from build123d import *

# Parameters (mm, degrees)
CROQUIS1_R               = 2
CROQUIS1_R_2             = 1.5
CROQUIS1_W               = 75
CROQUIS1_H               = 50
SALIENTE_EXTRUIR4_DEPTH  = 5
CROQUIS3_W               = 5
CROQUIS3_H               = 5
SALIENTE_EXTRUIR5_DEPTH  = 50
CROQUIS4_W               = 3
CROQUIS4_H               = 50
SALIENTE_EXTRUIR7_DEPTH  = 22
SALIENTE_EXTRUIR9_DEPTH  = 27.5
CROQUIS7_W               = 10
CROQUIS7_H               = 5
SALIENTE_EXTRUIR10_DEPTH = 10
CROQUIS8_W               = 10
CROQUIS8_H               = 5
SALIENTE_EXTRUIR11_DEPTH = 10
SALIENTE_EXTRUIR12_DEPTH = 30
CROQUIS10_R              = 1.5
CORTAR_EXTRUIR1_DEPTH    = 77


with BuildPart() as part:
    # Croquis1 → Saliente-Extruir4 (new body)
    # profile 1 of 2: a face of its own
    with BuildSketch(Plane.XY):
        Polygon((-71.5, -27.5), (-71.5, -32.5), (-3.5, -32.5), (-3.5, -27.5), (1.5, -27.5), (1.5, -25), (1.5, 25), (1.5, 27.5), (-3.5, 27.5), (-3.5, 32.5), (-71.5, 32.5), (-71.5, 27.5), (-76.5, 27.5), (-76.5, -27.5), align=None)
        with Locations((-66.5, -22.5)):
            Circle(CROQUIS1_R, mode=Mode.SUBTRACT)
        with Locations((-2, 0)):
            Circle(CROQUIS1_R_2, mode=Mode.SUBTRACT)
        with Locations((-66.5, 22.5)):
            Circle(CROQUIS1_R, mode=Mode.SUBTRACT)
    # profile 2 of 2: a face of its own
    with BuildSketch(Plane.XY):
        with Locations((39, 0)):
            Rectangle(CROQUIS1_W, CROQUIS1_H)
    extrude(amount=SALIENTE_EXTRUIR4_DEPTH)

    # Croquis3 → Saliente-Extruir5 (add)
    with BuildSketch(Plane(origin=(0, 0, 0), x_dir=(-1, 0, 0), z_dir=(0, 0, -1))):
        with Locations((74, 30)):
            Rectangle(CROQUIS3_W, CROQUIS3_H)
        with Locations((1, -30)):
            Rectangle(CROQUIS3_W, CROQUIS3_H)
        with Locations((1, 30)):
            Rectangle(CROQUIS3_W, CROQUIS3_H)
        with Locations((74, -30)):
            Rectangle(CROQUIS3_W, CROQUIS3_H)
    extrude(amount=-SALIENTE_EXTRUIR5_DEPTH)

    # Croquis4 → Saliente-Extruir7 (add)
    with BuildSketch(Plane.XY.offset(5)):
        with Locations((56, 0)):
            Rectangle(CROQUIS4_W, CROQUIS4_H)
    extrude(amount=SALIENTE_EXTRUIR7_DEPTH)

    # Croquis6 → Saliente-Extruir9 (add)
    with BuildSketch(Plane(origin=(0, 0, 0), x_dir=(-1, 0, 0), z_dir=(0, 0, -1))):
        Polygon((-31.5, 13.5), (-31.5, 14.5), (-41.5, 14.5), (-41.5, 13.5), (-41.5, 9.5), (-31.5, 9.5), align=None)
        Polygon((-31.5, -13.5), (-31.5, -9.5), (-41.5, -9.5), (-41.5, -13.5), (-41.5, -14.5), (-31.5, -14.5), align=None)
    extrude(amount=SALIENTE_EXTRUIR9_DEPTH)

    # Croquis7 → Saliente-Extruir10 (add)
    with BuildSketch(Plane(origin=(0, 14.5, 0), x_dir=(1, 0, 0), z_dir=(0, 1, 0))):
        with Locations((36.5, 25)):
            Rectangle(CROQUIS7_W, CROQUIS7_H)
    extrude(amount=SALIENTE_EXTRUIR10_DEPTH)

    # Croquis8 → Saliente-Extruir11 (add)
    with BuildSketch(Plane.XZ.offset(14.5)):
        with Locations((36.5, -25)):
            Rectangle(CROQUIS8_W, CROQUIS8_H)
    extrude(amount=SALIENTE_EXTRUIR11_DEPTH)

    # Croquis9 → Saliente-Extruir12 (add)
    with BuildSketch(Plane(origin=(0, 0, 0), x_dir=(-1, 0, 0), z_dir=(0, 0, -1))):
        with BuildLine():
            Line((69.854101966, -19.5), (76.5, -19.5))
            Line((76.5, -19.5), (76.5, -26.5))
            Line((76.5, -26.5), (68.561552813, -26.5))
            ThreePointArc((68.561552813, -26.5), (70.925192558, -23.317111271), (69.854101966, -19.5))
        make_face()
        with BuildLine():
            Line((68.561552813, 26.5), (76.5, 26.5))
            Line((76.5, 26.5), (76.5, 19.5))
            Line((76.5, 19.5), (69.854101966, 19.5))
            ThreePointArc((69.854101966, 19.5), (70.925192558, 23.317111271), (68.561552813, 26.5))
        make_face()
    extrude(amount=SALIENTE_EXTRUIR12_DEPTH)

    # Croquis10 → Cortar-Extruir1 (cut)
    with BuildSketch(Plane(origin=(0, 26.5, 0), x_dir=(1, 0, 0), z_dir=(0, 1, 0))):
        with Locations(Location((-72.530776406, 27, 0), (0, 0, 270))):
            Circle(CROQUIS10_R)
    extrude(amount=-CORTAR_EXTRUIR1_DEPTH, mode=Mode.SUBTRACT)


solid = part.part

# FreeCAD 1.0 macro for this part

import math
import FreeCAD as App
import Part
import Sketcher

V = App.Vector

doc = App.newDocument("Part")
body = doc.addObject("PartDesign::Body", "Body")

# Sketch on XY plane
sketch1 = body.newObject("Sketcher::SketchObject", "Sketch")
sketch1.AttachmentSupport = (doc.getObject("XY_Plane"), [""])
sketch1.MapMode = "FlatFace"
sketch1.addGeometry(Part.LineSegment(V(-71.5, -27.5, 0), V(-71.5, -32.5, 0)), False)
sketch1.addGeometry(Part.LineSegment(V(-71.5, -32.5, 0), V(-3.5, -32.5, 0)), False)
sketch1.addGeometry(Part.LineSegment(V(-3.5, -32.5, 0), V(-3.5, -27.5, 0)), False)
sketch1.addGeometry(Part.LineSegment(V(-3.5, -27.5, 0), V(1.5, -27.5, 0)), False)
sketch1.addGeometry(Part.LineSegment(V(1.5, -27.5, 0), V(1.5, -25, 0)), False)
sketch1.addGeometry(Part.LineSegment(V(1.5, -25, 0), V(76.5, -25, 0)), False)
sketch1.addGeometry(Part.LineSegment(V(76.5, -25, 0), V(76.5, 25, 0)), False)
sketch1.addGeometry(Part.LineSegment(V(76.5, 25, 0), V(1.5, 25, 0)), False)
sketch1.addGeometry(Part.LineSegment(V(1.5, 25, 0), V(1.5, 27.5, 0)), False)
sketch1.addGeometry(Part.LineSegment(V(1.5, 27.5, 0), V(-3.5, 27.5, 0)), False)
sketch1.addGeometry(Part.LineSegment(V(-3.5, 27.5, 0), V(-3.5, 32.5, 0)), False)
sketch1.addGeometry(Part.LineSegment(V(-3.5, 32.5, 0), V(-71.5, 32.5, 0)), False)
sketch1.addGeometry(Part.LineSegment(V(-71.5, 32.5, 0), V(-71.5, 27.5, 0)), False)
sketch1.addGeometry(Part.LineSegment(V(-71.5, 27.5, 0), V(-76.5, 27.5, 0)), False)
sketch1.addGeometry(Part.LineSegment(V(-76.5, 27.5, 0), V(-76.5, -27.5, 0)), False)
sketch1.addGeometry(Part.LineSegment(V(-76.5, -27.5, 0), V(-71.5, -27.5, 0)), False)
sketch1.addGeometry(Part.Circle(V(-66.5, -22.5, 0), V(0, 0, 1), 2), False)
sketch1.addGeometry(Part.Circle(V(-2, 0, 0), V(0, 0, 1), 1.5), False)
sketch1.addGeometry(Part.Circle(V(-66.5, 22.5, 0), V(0, 0, 1), 2), False)
sketch1.addConstraint(Sketcher.Constraint("Coincident", 0, 2, 1, 1))
sketch1.addConstraint(Sketcher.Constraint("Coincident", 1, 2, 2, 1))
sketch1.addConstraint(Sketcher.Constraint("Coincident", 2, 2, 3, 1))
sketch1.addConstraint(Sketcher.Constraint("Coincident", 3, 2, 4, 1))
sketch1.addConstraint(Sketcher.Constraint("Coincident", 4, 2, 5, 1))
sketch1.addConstraint(Sketcher.Constraint("Coincident", 5, 2, 6, 1))
sketch1.addConstraint(Sketcher.Constraint("Coincident", 6, 2, 7, 1))
sketch1.addConstraint(Sketcher.Constraint("Coincident", 7, 2, 8, 1))
sketch1.addConstraint(Sketcher.Constraint("Coincident", 8, 2, 9, 1))
sketch1.addConstraint(Sketcher.Constraint("Coincident", 9, 2, 10, 1))
sketch1.addConstraint(Sketcher.Constraint("Coincident", 10, 2, 11, 1))
sketch1.addConstraint(Sketcher.Constraint("Coincident", 11, 2, 12, 1))
sketch1.addConstraint(Sketcher.Constraint("Coincident", 12, 2, 13, 1))
sketch1.addConstraint(Sketcher.Constraint("Coincident", 13, 2, 14, 1))
sketch1.addConstraint(Sketcher.Constraint("Coincident", 14, 2, 15, 1))
sketch1.addConstraint(Sketcher.Constraint("Coincident", 15, 2, 0, 1))
sketch1.addConstraint(Sketcher.Constraint("Vertical", 0))
sketch1.addConstraint(Sketcher.Constraint("Horizontal", 1))
sketch1.addConstraint(Sketcher.Constraint("Vertical", 2))
sketch1.addConstraint(Sketcher.Constraint("Horizontal", 3))
sketch1.addConstraint(Sketcher.Constraint("Vertical", 4))
sketch1.addConstraint(Sketcher.Constraint("Horizontal", 5))
sketch1.addConstraint(Sketcher.Constraint("Vertical", 6))
sketch1.addConstraint(Sketcher.Constraint("Horizontal", 7))
sketch1.addConstraint(Sketcher.Constraint("Vertical", 8))
sketch1.addConstraint(Sketcher.Constraint("Horizontal", 9))
sketch1.addConstraint(Sketcher.Constraint("Vertical", 10))
sketch1.addConstraint(Sketcher.Constraint("Horizontal", 11))
sketch1.addConstraint(Sketcher.Constraint("Vertical", 12))
sketch1.addConstraint(Sketcher.Constraint("Horizontal", 13))
sketch1.addConstraint(Sketcher.Constraint("Vertical", 14))
sketch1.addConstraint(Sketcher.Constraint("Horizontal", 15))
sketch1.addConstraint(Sketcher.Constraint("Equal", 16, 18))
sketch1.addConstraint(Sketcher.Constraint("Symmetric", 16, 3, 18, 3, -1))
sketch1.addConstraint(Sketcher.Constraint("Symmetric", 4, 2, 7, 2, -1))
sketch1.addConstraint(Sketcher.Constraint("Symmetric", 2, 2, 9, 2, -1))
sketch1.addConstraint(Sketcher.Constraint("Symmetric", 0, 2, 11, 2, -1))
sketch1.addConstraint(Sketcher.Constraint("PointOnObject", 17, 3, -1))
sketch1.addConstraint(Sketcher.Constraint("Horizontal", 9, 2, 12, 2))
sketch1.addConstraint(Sketcher.Constraint("Horizontal", 3, 2, 14, 2))
sketch1.addConstraint(Sketcher.Constraint("Equal", 9, 13))
sketch1.addConstraint(Sketcher.Constraint("Equal", 15, 0))
sketch1.addConstraint(Sketcher.Constraint("Diameter", 16, 4.0))
sketch1.addConstraint(Sketcher.Constraint("Diameter", 17, 3.0))
sketch1.addConstraint(Sketcher.Constraint("DistanceX", 1, 1, 1, 2, 68.0))
sketch1.addConstraint(Sketcher.Constraint("DistanceX", 3, 1, 3, 2, 5.0))
sketch1.addConstraint(Sketcher.Constraint("DistanceX", 5, 1, 5, 2, 75.0))
sketch1.addConstraint(Sketcher.Constraint("DistanceY", 6, 1, 6, 2, 50.0))
sketch1.addConstraint(Sketcher.Constraint("DistanceY", 14, 2, 14, 1, 55.0))
sketch1.addConstraint(Sketcher.Constraint("DistanceX", 17, 3, -1, 1, 2.0))
sketch1.addConstraint(Sketcher.Constraint("DistanceY", 16, 3, 18, 3, 45.0))
sketch1.addConstraint(Sketcher.Constraint("DistanceX", 0, 2, 16, 3, 5.0))
sketch1.addConstraint(Sketcher.Constraint("DistanceX", 16, 3, -1, 1, 66.5))
pad1 = body.newObject("PartDesign::Pad", "Pad")
pad1.Profile = sketch1
pad1.Length = 5

# Sketch on XY plane
sketch2 = body.newObject("Sketcher::SketchObject", "Sketch001")
sketch2.AttachmentSupport = (doc.getObject("XY_Plane"), [""])
sketch2.MapMode = "FlatFace"
sketch2.addGeometry(Part.LineSegment(V(-72, 32, 0), V(-72, 28, 0)), False)
sketch2.addGeometry(Part.LineSegment(V(-72, 28, 0), V(-76, 28, 0)), False)
sketch2.addGeometry(Part.LineSegment(V(-76, 28, 0), V(-76, 32, 0)), False)
sketch2.addGeometry(Part.LineSegment(V(-76, 32, 0), V(-72, 32, 0)), False)
sketch2.addGeometry(Part.LineSegment(V(2, -28, 0), V(2, -32, 0)), False)
sketch2.addGeometry(Part.LineSegment(V(2, -32, 0), V(-4, -32, 0)), False)
sketch2.addGeometry(Part.LineSegment(V(-4, -32, 0), V(-4, -28, 0)), False)
sketch2.addGeometry(Part.LineSegment(V(-4, -28, 0), V(2, -28, 0)), False)
sketch2.addGeometry(Part.LineSegment(V(2, 32, 0), V(2, 28, 0)), False)
sketch2.addGeometry(Part.LineSegment(V(2, 28, 0), V(-4, 28, 0)), False)
sketch2.addGeometry(Part.LineSegment(V(-4, 28, 0), V(-4, 32, 0)), False)
sketch2.addGeometry(Part.LineSegment(V(-4, 32, 0), V(2, 32, 0)), False)
sketch2.addGeometry(Part.LineSegment(V(-72, -28, 0), V(-72, -32, 0)), False)
sketch2.addGeometry(Part.LineSegment(V(-72, -32, 0), V(-76, -32, 0)), False)
sketch2.addGeometry(Part.LineSegment(V(-76, -32, 0), V(-76, -28, 0)), False)
sketch2.addGeometry(Part.LineSegment(V(-76, -28, 0), V(-72, -28, 0)), False)
sketch2.addConstraint(Sketcher.Constraint("Coincident", 0, 2, 1, 1))
sketch2.addConstraint(Sketcher.Constraint("Coincident", 1, 2, 2, 1))
sketch2.addConstraint(Sketcher.Constraint("Coincident", 2, 2, 3, 1))
sketch2.addConstraint(Sketcher.Constraint("Coincident", 3, 2, 0, 1))
sketch2.addConstraint(Sketcher.Constraint("Coincident", 4, 2, 5, 1))
sketch2.addConstraint(Sketcher.Constraint("Coincident", 5, 2, 6, 1))
sketch2.addConstraint(Sketcher.Constraint("Coincident", 6, 2, 7, 1))
sketch2.addConstraint(Sketcher.Constraint("Coincident", 7, 2, 4, 1))
sketch2.addConstraint(Sketcher.Constraint("Coincident", 8, 2, 9, 1))
sketch2.addConstraint(Sketcher.Constraint("Coincident", 9, 2, 10, 1))
sketch2.addConstraint(Sketcher.Constraint("Coincident", 10, 2, 11, 1))
sketch2.addConstraint(Sketcher.Constraint("Coincident", 11, 2, 8, 1))
sketch2.addConstraint(Sketcher.Constraint("Coincident", 12, 2, 13, 1))
sketch2.addConstraint(Sketcher.Constraint("Coincident", 13, 2, 14, 1))
sketch2.addConstraint(Sketcher.Constraint("Coincident", 14, 2, 15, 1))
sketch2.addConstraint(Sketcher.Constraint("Coincident", 15, 2, 12, 1))
sketch2.addConstraint(Sketcher.Constraint("Vertical", 0))
sketch2.addConstraint(Sketcher.Constraint("Horizontal", 1))
sketch2.addConstraint(Sketcher.Constraint("Vertical", 2))
sketch2.addConstraint(Sketcher.Constraint("Horizontal", 3))
sketch2.addConstraint(Sketcher.Constraint("Vertical", 4))
sketch2.addConstraint(Sketcher.Constraint("Horizontal", 5))
sketch2.addConstraint(Sketcher.Constraint("Vertical", 6))
sketch2.addConstraint(Sketcher.Constraint("Horizontal", 7))
sketch2.addConstraint(Sketcher.Constraint("Vertical", 8))
sketch2.addConstraint(Sketcher.Constraint("Horizontal", 9))
sketch2.addConstraint(Sketcher.Constraint("Vertical", 10))
sketch2.addConstraint(Sketcher.Constraint("Horizontal", 11))
sketch2.addConstraint(Sketcher.Constraint("Vertical", 12))
sketch2.addConstraint(Sketcher.Constraint("Horizontal", 13))
sketch2.addConstraint(Sketcher.Constraint("Vertical", 14))
sketch2.addConstraint(Sketcher.Constraint("Horizontal", 15))
sketch2.addConstraint(Sketcher.Constraint("Symmetric", 7, 2, 8, 2, -1))
sketch2.addConstraint(Sketcher.Constraint("Symmetric", 5, 2, 10, 2, -1))
sketch2.addConstraint(Sketcher.Constraint("Symmetric", 3, 2, 12, 2, -1))
sketch2.addConstraint(Sketcher.Constraint("Symmetric", 1, 2, 14, 2, -1))
sketch2.addConstraint(Sketcher.Constraint("Horizontal", 1, 2, 8, 2))
sketch2.addConstraint(Sketcher.Constraint("Horizontal", 3, 2, 10, 2))
sketch2.addConstraint(Sketcher.Constraint("Equal", 3, 5))
sketch2.addConstraint(Sketcher.Constraint("Equal", 15, 0))
sketch2.addConstraint(Sketcher.Constraint("DistanceX", 1, 2, 1, 1, 5.0))
sketch2.addConstraint(Sketcher.Constraint("DistanceX", 0, 2, 4, 2, 73.0))
sketch2.addConstraint(Sketcher.Constraint("DistanceY", 4, 2, 0, 2, 60.0))
sketch2.addConstraint(Sketcher.Constraint("DistanceX", 0, 2, -1, 1, 71.5))
pad2 = body.newObject("PartDesign::Pad", "Pad001")
pad2.Profile = sketch2
pad2.Length = 50

# Sketch on XY plane
sketch3 = body.newObject("Sketcher::SketchObject", "Sketch002")
sketch3.AttachmentSupport = (doc.getObject("XY_Plane"), [""])
sketch3.MapMode = "FlatFace"
sketch3.AttachmentOffset = App.Placement(V(0, 0, 5), App.Rotation())
sketch3.addGeometry(Part.LineSegment(V(54.5, 25, 0), V(54.5, -25, 0)), False)
sketch3.addGeometry(Part.LineSegment(V(54.5, -25, 0), V(57.5, -25, 0)), False)
sketch3.addGeometry(Part.LineSegment(V(57.5, -25, 0), V(57.5, 25, 0)), False)
sketch3.addGeometry(Part.LineSegment(V(57.5, 25, 0), V(54.5, 25, 0)), False)
sketch3.addConstraint(Sketcher.Constraint("Coincident", 0, 2, 1, 1))
sketch3.addConstraint(Sketcher.Constraint("Coincident", 1, 2, 2, 1))
sketch3.addConstraint(Sketcher.Constraint("Coincident", 2, 2, 3, 1))
sketch3.addConstraint(Sketcher.Constraint("Coincident", 3, 2, 0, 1))
sketch3.addConstraint(Sketcher.Constraint("Vertical", 0))
sketch3.addConstraint(Sketcher.Constraint("Horizontal", 1))
sketch3.addConstraint(Sketcher.Constraint("Vertical", 2))
sketch3.addConstraint(Sketcher.Constraint("Horizontal", 3))
sketch3.addConstraint(Sketcher.Constraint("DistanceX", 1, 1, 1, 2, 3.0))
sketch3.addConstraint(Sketcher.Constraint("DistanceY", 0, 2, 0, 1, 50.0))
sketch3.addConstraint(Sketcher.Constraint("DistanceY", 0, 2, -1, 1, 25.0))
sketch3.addConstraint(Sketcher.Constraint("DistanceX", -1, 1, 0, 2, 54.5))
pad3 = body.newObject("PartDesign::Pad", "Pad002")
pad3.Profile = sketch3
pad3.Length = 22

# Sketch on XY plane
sketch4 = body.newObject("Sketcher::SketchObject", "Sketch003")
sketch4.AttachmentSupport = (doc.getObject("XY_Plane"), [""])
sketch4.MapMode = "FlatFace"
sketch4.addGeometry(Part.LineSegment(V(32, 14, 0), V(42, 14, 0)), False)
sketch4.addGeometry(Part.LineSegment(V(42, 14, 0), V(42, 10, 0)), False)
sketch4.addGeometry(Part.LineSegment(V(42, 10, 0), V(32, 10, 0)), False)
sketch4.addGeometry(Part.LineSegment(V(32, 10, 0), V(32, 14, 0)), False)
sketch4.addGeometry(Part.LineSegment(V(32, -10, 0), V(42, -10, 0)), False)
sketch4.addGeometry(Part.LineSegment(V(42, -10, 0), V(42, -14, 0)), False)
sketch4.addGeometry(Part.LineSegment(V(42, -14, 0), V(32, -14, 0)), False)
sketch4.addGeometry(Part.LineSegment(V(32, -14, 0), V(32, -10, 0)), False)
sketch4.addConstraint(Sketcher.Constraint("Coincident", 0, 2, 1, 1))
sketch4.addConstraint(Sketcher.Constraint("Coincident", 1, 2, 2, 1))
sketch4.addConstraint(Sketcher.Constraint("Coincident", 2, 2, 3, 1))
sketch4.addConstraint(Sketcher.Constraint("Coincident", 3, 2, 0, 1))
sketch4.addConstraint(Sketcher.Constraint("Coincident", 4, 2, 5, 1))
sketch4.addConstraint(Sketcher.Constraint("Coincident", 5, 2, 6, 1))
sketch4.addConstraint(Sketcher.Constraint("Coincident", 6, 2, 7, 1))
sketch4.addConstraint(Sketcher.Constraint("Coincident", 7, 2, 4, 1))
sketch4.addConstraint(Sketcher.Constraint("Horizontal", 0))
sketch4.addConstraint(Sketcher.Constraint("Vertical", 1))
sketch4.addConstraint(Sketcher.Constraint("Horizontal", 2))
sketch4.addConstraint(Sketcher.Constraint("Vertical", 3))
sketch4.addConstraint(Sketcher.Constraint("Horizontal", 4))
sketch4.addConstraint(Sketcher.Constraint("Vertical", 5))
sketch4.addConstraint(Sketcher.Constraint("Horizontal", 6))
sketch4.addConstraint(Sketcher.Constraint("Vertical", 7))
sketch4.addConstraint(Sketcher.Constraint("Symmetric", 1, 2, 4, 2, -1))
sketch4.addConstraint(Sketcher.Constraint("Symmetric", 3, 2, 6, 2, -1))
sketch4.addConstraint(Sketcher.Constraint("DistanceX", 0, 1, 0, 2, 10.0))
sketch4.addConstraint(Sketcher.Constraint("DistanceY", 1, 2, 1, 1, 5.0))
sketch4.addConstraint(Sketcher.Constraint("DistanceY", 4, 2, 1, 2, 19.0))
sketch4.addConstraint(Sketcher.Constraint("DistanceX", -1, 1, 0, 2, 41.5))
pad4 = body.newObject("PartDesign::Pad", "Pad003")
pad4.Profile = sketch4
pad4.Length = 27.5
pad4.Reversed = True

# Sketch on XZ plane
sketch5 = body.newObject("Sketcher::SketchObject", "Sketch004")
sketch5.AttachmentSupport = (doc.getObject("XZ_Plane"), [""])
sketch5.MapMode = "FlatFace"
sketch5.AttachmentOffset = App.Placement(V(0, 0, -14.5), App.Rotation())
sketch5.addGeometry(Part.LineSegment(V(32, -28, 0), V(32, -22, 0)), False)
sketch5.addGeometry(Part.LineSegment(V(32, -22, 0), V(42, -22, 0)), False)
sketch5.addGeometry(Part.LineSegment(V(42, -22, 0), V(42, -28, 0)), False)
sketch5.addGeometry(Part.LineSegment(V(42, -28, 0), V(32, -28, 0)), False)
sketch5.addConstraint(Sketcher.Constraint("Coincident", 0, 2, 1, 1))
sketch5.addConstraint(Sketcher.Constraint("Coincident", 1, 2, 2, 1))
sketch5.addConstraint(Sketcher.Constraint("Coincident", 2, 2, 3, 1))
sketch5.addConstraint(Sketcher.Constraint("Coincident", 3, 2, 0, 1))
sketch5.addConstraint(Sketcher.Constraint("Vertical", 0))
sketch5.addConstraint(Sketcher.Constraint("Horizontal", 1))
sketch5.addConstraint(Sketcher.Constraint("Vertical", 2))
sketch5.addConstraint(Sketcher.Constraint("Horizontal", 3))
sketch5.addConstraint(Sketcher.Constraint("DistanceX", 1, 1, 1, 2, 10.0))
sketch5.addConstraint(Sketcher.Constraint("DistanceY", 0, 1, 0, 2, 5.0))
sketch5.addConstraint(Sketcher.Constraint("DistanceX", -1, 1, 0, 2, 31.5))
sketch5.addConstraint(Sketcher.Constraint("DistanceY", 0, 2, -1, 1, 22.5))
pad5 = body.newObject("PartDesign::Pad", "Pad004")
pad5.Profile = sketch5
pad5.Length = 10
pad5.Reversed = True

# Sketch on XZ plane
sketch6 = body.newObject("Sketcher::SketchObject", "Sketch005")
sketch6.AttachmentSupport = (doc.getObject("XZ_Plane"), [""])
sketch6.MapMode = "FlatFace"
sketch6.AttachmentOffset = App.Placement(V(0, 0, 14.5), App.Rotation())
sketch6.addGeometry(Part.LineSegment(V(32, -22, 0), V(32, -28, 0)), False)
sketch6.addGeometry(Part.LineSegment(V(32, -28, 0), V(42, -28, 0)), False)
sketch6.addGeometry(Part.LineSegment(V(42, -28, 0), V(42, -22, 0)), False)
sketch6.addGeometry(Part.LineSegment(V(42, -22, 0), V(32, -22, 0)), False)
sketch6.addConstraint(Sketcher.Constraint("Coincident", 0, 2, 1, 1))
sketch6.addConstraint(Sketcher.Constraint("Coincident", 1, 2, 2, 1))
sketch6.addConstraint(Sketcher.Constraint("Coincident", 2, 2, 3, 1))
sketch6.addConstraint(Sketcher.Constraint("Coincident", 3, 2, 0, 1))
sketch6.addConstraint(Sketcher.Constraint("Vertical", 0))
sketch6.addConstraint(Sketcher.Constraint("Horizontal", 1))
sketch6.addConstraint(Sketcher.Constraint("Vertical", 2))
sketch6.addConstraint(Sketcher.Constraint("Horizontal", 3))
sketch6.addConstraint(Sketcher.Constraint("DistanceX", 1, 1, 1, 2, 10.0))
sketch6.addConstraint(Sketcher.Constraint("DistanceY", 0, 2, 0, 1, 5.0))
sketch6.addConstraint(Sketcher.Constraint("DistanceX", -1, 1, 0, 2, 31.5))
sketch6.addConstraint(Sketcher.Constraint("DistanceY", 0, 2, -1, 1, 27.5))
pad6 = body.newObject("PartDesign::Pad", "Pad005")
pad6.Profile = sketch6
pad6.Length = 10

# Sketch on XY plane
sketch7 = body.newObject("Sketcher::SketchObject", "Sketch006")
sketch7.AttachmentSupport = (doc.getObject("XY_Plane"), [""])
sketch7.MapMode = "FlatFace"
sketch7.addGeometry(Part.LineSegment(V(-76.5, -19.5, 0), V(-69.9, -19.5, 0)), False)
sketch7.addGeometry(Part.ArcOfCircle(Part.Circle(V(-66.5, -22.5, 0), V(0, 0, 1), 4.5), math.radians(138), math.radians(243)), False)
sketch7.addGeometry(Part.LineSegment(V(-68.6, -26.5, 0), V(-76.5, -26.5, 0)), False)
sketch7.addGeometry(Part.LineSegment(V(-76.5, -26.5, 0), V(-76.5, -19.5, 0)), False)
sketch7.addGeometry(Part.LineSegment(V(-76.5, 26.5, 0), V(-68.6, 26.5, 0)), False)
sketch7.addGeometry(Part.ArcOfCircle(Part.Circle(V(-66.5, 22.5, 0), V(0, 0, 1), 4.5), math.radians(117), math.radians(222)), False)
sketch7.addGeometry(Part.LineSegment(V(-69.9, 19.5, 0), V(-76.5, 19.5, 0)), False)
sketch7.addGeometry(Part.LineSegment(V(-76.5, 19.5, 0), V(-76.5, 26.5, 0)), False)
sketch7.addConstraint(Sketcher.Constraint("Coincident", 0, 2, 1, 1))
sketch7.addConstraint(Sketcher.Constraint("Coincident", 1, 2, 2, 1))
sketch7.addConstraint(Sketcher.Constraint("Coincident", 2, 2, 3, 1))
sketch7.addConstraint(Sketcher.Constraint("Coincident", 3, 2, 0, 1))
sketch7.addConstraint(Sketcher.Constraint("Coincident", 4, 2, 5, 1))
sketch7.addConstraint(Sketcher.Constraint("Coincident", 5, 2, 6, 1))
sketch7.addConstraint(Sketcher.Constraint("Coincident", 6, 2, 7, 1))
sketch7.addConstraint(Sketcher.Constraint("Coincident", 7, 2, 4, 1))
sketch7.addConstraint(Sketcher.Constraint("Horizontal", 0))
sketch7.addConstraint(Sketcher.Constraint("Horizontal", 2))
sketch7.addConstraint(Sketcher.Constraint("Vertical", 3))
sketch7.addConstraint(Sketcher.Constraint("Horizontal", 4))
sketch7.addConstraint(Sketcher.Constraint("Horizontal", 6))
sketch7.addConstraint(Sketcher.Constraint("Vertical", 7))
sketch7.addConstraint(Sketcher.Constraint("Equal", 1, 5))
sketch7.addConstraint(Sketcher.Constraint("Symmetric", 1, 3, 5, 3, -1))
sketch7.addConstraint(Sketcher.Constraint("Symmetric", 3, 2, 6, 2, -1))
sketch7.addConstraint(Sketcher.Constraint("Vertical", 1, 2, 4, 2))
sketch7.addConstraint(Sketcher.Constraint("Radius", 1, 4.5))
sketch7.addConstraint(Sketcher.Constraint("DistanceY", 3, 1, 3, 2, 7.0))
sketch7.addConstraint(Sketcher.Constraint("DistanceY", 1, 3, 5, 3, 45.0))
sketch7.addConstraint(Sketcher.Constraint("DistanceY", 1, 3, 0, 2, 3.0))
sketch7.addConstraint(Sketcher.Constraint("DistanceX", 2, 2, 1, 3, 10.0))
sketch7.addConstraint(Sketcher.Constraint("DistanceX", 1, 3, -1, 1, 66.5))
pad7 = body.newObject("PartDesign::Pad", "Pad006")
pad7.Profile = sketch7
pad7.Length = 30
pad7.Reversed = True

# Sketch on XZ plane
sketch8 = body.newObject("Sketcher::SketchObject", "Sketch007")
sketch8.AttachmentSupport = (doc.getObject("XZ_Plane"), [""])
sketch8.MapMode = "FlatFace"
sketch8.AttachmentOffset = App.Placement(V(0, 0, -26.5), App.Rotation())
sketch8.addGeometry(Part.Circle(V(-72.5, -27, 0), V(0, 0, 1), 1.5), False)
sketch8.addConstraint(Sketcher.Constraint("Diameter", 0, 3.0))
sketch8.addConstraint(Sketcher.Constraint("DistanceY", 0, 3, -1, 1, 27.0))
sketch8.addConstraint(Sketcher.Constraint("DistanceX", 0, 3, -1, 1, 72.530776))
pocket1 = body.newObject("PartDesign::Pocket", "Pocket")
pocket1.Profile = sketch8
pocket1.Length = 77
pocket1.Reversed = True

doc.recompute()
